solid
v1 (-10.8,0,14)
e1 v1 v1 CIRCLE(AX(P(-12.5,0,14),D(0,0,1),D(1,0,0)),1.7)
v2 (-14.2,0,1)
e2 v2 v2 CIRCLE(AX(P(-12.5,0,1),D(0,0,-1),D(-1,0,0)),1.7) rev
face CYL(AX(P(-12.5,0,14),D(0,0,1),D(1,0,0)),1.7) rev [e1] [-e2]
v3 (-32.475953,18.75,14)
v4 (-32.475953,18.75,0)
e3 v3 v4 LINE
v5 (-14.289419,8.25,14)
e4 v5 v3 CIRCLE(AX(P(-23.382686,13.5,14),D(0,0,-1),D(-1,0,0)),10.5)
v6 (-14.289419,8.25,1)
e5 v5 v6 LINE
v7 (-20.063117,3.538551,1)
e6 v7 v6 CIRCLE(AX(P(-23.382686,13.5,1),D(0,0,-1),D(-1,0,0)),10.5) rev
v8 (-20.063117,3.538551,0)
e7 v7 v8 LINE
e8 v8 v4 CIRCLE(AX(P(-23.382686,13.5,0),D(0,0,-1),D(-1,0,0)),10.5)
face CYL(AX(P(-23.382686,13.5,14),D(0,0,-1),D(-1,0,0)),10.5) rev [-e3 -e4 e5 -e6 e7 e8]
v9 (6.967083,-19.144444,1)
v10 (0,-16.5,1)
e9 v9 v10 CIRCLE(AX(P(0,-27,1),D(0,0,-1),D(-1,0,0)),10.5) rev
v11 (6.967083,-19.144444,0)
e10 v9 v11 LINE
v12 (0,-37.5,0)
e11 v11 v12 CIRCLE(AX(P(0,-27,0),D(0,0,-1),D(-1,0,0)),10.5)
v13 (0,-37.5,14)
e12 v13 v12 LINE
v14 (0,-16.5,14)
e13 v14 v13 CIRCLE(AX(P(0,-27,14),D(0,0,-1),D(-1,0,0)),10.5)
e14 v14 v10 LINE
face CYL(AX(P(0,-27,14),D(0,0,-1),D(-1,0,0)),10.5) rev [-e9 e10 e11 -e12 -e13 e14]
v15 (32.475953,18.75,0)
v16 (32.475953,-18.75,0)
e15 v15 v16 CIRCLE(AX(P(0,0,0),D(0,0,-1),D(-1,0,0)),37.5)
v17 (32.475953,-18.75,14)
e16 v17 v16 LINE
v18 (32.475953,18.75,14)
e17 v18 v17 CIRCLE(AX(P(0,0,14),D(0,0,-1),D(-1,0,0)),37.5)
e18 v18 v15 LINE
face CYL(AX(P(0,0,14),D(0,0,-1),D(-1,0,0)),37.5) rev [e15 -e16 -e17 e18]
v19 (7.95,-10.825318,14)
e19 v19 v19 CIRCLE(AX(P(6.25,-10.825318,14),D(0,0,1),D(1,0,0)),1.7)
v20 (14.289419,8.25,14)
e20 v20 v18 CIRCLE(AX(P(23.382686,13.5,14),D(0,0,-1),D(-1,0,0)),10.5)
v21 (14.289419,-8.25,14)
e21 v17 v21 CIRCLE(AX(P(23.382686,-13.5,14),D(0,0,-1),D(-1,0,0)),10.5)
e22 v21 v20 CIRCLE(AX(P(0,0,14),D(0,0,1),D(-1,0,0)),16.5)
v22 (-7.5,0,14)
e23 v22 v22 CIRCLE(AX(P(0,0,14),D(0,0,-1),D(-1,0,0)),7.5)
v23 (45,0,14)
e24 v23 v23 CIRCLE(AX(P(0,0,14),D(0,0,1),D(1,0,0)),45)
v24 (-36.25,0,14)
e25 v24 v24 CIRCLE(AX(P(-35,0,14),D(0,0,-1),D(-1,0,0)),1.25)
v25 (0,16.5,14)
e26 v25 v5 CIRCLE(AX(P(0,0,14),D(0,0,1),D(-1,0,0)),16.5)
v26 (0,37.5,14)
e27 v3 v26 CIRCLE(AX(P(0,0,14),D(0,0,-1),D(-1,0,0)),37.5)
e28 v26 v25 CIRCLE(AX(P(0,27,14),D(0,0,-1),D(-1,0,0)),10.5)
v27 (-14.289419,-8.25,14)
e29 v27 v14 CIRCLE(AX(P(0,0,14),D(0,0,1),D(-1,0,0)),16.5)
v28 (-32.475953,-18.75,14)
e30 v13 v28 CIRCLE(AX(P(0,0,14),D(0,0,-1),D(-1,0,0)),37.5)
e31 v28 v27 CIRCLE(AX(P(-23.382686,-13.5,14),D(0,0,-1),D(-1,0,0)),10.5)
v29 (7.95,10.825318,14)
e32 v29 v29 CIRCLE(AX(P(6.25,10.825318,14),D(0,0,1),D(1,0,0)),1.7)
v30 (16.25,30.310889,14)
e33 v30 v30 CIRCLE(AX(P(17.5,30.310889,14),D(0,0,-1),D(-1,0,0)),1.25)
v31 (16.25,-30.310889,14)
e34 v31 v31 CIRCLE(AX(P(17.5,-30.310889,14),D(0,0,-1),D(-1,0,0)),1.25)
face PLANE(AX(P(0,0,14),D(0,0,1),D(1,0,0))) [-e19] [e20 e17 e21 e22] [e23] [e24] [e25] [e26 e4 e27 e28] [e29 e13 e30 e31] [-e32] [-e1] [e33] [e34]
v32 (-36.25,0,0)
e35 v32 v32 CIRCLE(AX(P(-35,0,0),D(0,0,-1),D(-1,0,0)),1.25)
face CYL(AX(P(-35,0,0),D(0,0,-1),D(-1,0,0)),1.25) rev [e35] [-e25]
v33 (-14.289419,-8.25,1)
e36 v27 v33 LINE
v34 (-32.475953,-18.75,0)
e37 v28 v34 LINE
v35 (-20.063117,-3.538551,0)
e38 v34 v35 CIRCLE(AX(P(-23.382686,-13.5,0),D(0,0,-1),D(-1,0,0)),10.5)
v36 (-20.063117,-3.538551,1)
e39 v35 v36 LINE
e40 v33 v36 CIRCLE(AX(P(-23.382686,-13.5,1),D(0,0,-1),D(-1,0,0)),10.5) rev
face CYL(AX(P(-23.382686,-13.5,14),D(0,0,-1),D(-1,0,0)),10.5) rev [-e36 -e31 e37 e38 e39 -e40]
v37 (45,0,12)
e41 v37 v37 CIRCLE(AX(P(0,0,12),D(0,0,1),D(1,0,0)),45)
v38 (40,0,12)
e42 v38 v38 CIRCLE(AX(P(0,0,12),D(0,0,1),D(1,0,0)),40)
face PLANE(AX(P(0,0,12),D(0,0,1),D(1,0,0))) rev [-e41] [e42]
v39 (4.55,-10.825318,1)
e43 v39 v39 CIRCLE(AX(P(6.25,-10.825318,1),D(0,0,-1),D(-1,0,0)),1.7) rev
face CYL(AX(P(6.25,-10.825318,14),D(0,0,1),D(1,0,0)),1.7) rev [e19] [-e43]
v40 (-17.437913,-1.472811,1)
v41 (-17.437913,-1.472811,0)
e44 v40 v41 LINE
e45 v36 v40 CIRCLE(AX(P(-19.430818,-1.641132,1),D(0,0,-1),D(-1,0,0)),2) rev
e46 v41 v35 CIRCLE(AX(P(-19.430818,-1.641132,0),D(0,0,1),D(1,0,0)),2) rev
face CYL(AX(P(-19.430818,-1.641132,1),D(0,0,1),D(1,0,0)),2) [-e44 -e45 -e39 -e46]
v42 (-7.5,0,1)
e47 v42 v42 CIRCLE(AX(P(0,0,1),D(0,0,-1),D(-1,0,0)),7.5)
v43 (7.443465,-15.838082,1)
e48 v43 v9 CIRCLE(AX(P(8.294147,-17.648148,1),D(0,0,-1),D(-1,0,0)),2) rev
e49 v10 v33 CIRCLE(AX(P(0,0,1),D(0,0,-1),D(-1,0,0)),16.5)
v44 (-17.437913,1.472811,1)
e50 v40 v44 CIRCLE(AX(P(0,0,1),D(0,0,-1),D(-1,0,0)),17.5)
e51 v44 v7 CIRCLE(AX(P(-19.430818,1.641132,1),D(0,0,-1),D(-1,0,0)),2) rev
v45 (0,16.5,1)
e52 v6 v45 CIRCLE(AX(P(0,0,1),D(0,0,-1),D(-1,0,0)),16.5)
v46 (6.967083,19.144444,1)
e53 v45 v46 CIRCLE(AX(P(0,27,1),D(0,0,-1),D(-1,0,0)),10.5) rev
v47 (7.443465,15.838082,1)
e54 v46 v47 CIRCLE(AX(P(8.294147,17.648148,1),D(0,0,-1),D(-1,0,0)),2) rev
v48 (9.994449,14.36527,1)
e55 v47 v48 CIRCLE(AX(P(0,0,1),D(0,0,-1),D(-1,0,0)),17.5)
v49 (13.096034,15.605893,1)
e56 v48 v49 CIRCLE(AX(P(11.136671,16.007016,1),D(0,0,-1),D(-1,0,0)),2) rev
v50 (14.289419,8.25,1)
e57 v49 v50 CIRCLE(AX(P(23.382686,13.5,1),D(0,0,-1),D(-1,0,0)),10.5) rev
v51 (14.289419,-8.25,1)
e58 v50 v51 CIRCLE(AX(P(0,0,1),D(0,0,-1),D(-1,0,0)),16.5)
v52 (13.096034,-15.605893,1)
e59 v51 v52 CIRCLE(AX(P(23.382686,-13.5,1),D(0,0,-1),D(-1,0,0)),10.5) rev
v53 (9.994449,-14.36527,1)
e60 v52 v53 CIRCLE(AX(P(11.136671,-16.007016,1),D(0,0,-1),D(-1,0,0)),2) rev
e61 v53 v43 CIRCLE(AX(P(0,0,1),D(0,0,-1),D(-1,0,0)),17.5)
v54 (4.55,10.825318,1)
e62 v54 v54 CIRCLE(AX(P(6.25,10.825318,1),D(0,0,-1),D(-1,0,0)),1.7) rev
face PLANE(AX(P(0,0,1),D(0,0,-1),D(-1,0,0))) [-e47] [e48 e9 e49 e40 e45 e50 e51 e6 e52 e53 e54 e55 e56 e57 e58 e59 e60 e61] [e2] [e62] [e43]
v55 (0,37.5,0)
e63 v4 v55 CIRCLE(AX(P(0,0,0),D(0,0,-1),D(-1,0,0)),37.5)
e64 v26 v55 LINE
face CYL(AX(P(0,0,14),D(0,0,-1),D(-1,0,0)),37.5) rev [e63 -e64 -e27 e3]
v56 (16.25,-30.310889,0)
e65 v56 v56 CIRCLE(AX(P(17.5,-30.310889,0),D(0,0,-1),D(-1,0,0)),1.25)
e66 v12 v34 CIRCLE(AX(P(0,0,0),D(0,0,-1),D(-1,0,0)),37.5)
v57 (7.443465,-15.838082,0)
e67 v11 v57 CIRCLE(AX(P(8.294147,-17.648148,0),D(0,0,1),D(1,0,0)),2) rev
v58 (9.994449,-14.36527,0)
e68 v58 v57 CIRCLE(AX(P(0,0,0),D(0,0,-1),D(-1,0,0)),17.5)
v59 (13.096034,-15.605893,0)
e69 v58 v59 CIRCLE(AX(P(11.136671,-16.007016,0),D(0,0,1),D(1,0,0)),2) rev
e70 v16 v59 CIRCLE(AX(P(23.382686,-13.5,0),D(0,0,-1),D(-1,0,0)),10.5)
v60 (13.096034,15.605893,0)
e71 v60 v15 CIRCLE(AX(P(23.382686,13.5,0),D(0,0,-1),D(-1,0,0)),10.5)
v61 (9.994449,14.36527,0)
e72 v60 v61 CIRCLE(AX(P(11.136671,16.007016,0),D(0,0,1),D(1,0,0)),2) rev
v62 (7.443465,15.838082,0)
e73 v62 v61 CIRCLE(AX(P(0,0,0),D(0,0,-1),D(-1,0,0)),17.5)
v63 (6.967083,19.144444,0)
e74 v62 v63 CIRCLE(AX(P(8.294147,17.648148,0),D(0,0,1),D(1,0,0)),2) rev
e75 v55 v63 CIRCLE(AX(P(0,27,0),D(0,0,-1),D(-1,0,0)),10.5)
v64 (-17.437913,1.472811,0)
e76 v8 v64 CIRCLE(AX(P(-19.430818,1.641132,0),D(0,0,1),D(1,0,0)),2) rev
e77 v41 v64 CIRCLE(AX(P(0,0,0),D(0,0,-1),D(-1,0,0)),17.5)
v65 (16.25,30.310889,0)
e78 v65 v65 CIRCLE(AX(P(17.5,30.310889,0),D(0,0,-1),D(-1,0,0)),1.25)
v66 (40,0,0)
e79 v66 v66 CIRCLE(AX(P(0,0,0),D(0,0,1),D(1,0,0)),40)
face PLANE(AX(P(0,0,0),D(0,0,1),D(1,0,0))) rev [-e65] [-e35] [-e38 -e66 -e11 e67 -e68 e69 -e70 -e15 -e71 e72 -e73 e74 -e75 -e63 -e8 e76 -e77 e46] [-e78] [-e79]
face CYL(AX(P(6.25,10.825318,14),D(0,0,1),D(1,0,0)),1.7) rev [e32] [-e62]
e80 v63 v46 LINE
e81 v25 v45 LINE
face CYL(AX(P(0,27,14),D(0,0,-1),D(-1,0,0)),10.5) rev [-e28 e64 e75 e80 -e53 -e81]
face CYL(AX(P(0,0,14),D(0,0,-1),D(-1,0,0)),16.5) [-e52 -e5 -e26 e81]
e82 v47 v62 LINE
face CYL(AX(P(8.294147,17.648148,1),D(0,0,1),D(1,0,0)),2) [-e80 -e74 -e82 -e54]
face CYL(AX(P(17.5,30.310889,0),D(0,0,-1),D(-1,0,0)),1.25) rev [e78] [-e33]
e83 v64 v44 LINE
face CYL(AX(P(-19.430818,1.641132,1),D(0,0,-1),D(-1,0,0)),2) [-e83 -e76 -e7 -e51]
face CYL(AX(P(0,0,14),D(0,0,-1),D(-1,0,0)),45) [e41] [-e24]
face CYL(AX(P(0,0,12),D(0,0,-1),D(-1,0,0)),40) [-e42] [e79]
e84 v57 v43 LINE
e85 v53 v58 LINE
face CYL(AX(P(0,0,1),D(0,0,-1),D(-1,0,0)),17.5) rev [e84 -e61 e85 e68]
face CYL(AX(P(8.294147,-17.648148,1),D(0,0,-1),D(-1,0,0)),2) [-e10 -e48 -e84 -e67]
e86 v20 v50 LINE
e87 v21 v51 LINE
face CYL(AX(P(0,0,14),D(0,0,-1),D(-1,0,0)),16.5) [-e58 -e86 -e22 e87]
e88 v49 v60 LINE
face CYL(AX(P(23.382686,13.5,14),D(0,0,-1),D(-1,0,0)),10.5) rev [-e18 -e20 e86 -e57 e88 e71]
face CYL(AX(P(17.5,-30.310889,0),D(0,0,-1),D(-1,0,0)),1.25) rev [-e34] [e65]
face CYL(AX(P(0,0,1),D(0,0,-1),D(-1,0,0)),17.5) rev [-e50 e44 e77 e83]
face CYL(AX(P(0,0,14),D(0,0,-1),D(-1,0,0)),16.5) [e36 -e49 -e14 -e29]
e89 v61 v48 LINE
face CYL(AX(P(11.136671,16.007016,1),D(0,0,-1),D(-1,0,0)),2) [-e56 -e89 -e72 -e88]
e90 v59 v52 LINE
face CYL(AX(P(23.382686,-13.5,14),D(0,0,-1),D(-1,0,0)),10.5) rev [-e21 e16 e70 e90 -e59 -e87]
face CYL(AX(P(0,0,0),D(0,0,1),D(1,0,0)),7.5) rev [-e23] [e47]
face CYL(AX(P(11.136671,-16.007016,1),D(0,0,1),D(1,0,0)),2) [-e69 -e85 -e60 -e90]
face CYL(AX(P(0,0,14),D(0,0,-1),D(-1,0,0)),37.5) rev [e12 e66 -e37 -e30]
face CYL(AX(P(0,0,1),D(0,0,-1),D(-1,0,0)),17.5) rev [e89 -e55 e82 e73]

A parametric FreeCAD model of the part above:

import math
import FreeCAD as App
import Part
import Sketcher

V = App.Vector


def edges_at(feature, points):
    """Names of the edges that pass closest to the given points."""
    edges = feature.Shape.Edges
    near = lambda p: min(range(len(edges)), key=lambda i: edges[i].distToShape(Part.Vertex(*p))[0])
    return sorted({f"Edge{near(p) + 1}" for p in points})

doc = App.newDocument("Part")
params = doc.addObject("Spreadsheet::Sheet", "Params")
for row, (alias, value) in enumerate([
    ("sketch1_diameter", "80 mm"),
    ("pad1_length", "12 mm"),
    ("sketch2_diameter", "90 mm"),
    ("pad2_length", "2 mm"),
    ("sketch3_diameter", "15 mm"),
    ("sketch4_diameter", "3.4 mm"),
    ("hole_diameter", "3.4 mm"),
    ("sketch5_radius", "10.5 mm"),
    ("sketch5_radius2", "16.5 mm"),
    ("sketch6_diameter", "2.5 mm"),
    ("hole2_diameter", "2.5 mm"),
    ("sketch7_diameter", "35 mm"),
    ("pocket3_length", "1 mm"),
    ("fillet_radius", "2 mm"),
], start=1):
    params.set(f"A{row}", alias)
    params.set(f"B{row}", "=" + value)
    params.setAlias(f"B{row}", alias)

body = doc.addObject("PartDesign::Body", "Body")

sketch1 = body.newObject("Sketcher::SketchObject", "Sketch")
sketch1.AttachmentSupport = (doc.getObject("XY_Plane"), [""])
sketch1.MapMode = "FlatFace"
sketch1.addGeometry(Part.Circle(V(0, 0, 0), V(0, 0, 1), 40), False)
sketch1.addConstraint([
    Sketcher.Constraint("Coincident", 0, 3, -1, 1),
    Sketcher.Constraint("Diameter", 0, 80.0),
])
sketch1.setExpression("Constraints[1]", "Params.sketch1_diameter")
pad1 = body.newObject("PartDesign::Pad", "Pad")
pad1.Profile = sketch1
pad1.setExpression("Length", "Params.pad1_length")

sketch2 = body.newObject("Sketcher::SketchObject", "Sketch001")
sketch2.AttachmentSupport = (doc.getObject("XY_Plane"), [""])
sketch2.MapMode = "FlatFace"
sketch2.AttachmentOffset = App.Placement(V(0, 0, 12), App.Rotation())
sketch2.addGeometry(Part.Circle(V(0, 0, 0), V(0, 0, 1), 45), False)
sketch2.addConstraint([
    Sketcher.Constraint("Coincident", 0, 3, -1, 1),
    Sketcher.Constraint("Diameter", 0, 90.0),
])
sketch2.setExpression("Constraints[1]", "Params.sketch2_diameter")
pad2 = body.newObject("PartDesign::Pad", "Pad001")
pad2.Profile = sketch2
pad2.setExpression("Length", "Params.pad2_length")

sketch3 = body.newObject("Sketcher::SketchObject", "Sketch002")
sketch3.AttachmentSupport = (doc.getObject("XY_Plane"), [""])
sketch3.MapMode = "FlatFace"
sketch3.AttachmentOffset = App.Placement(V(0, 0, 14), App.Rotation())
sketch3.addGeometry(Part.Circle(V(0, 0, 0), V(0, 0, 1), 8), False)
sketch3.addConstraint([
    Sketcher.Constraint("Coincident", 0, 3, -1, 1),
    Sketcher.Constraint("Diameter", 0, 15.0),
])
sketch3.setExpression("Constraints[1]", "Params.sketch3_diameter")
pocket1 = body.newObject("PartDesign::Pocket", "Pocket")
pocket1.Profile = sketch3
pocket1.Type = "ThroughAll"

sketch4 = body.newObject("Sketcher::SketchObject", "Sketch003")
sketch4.AttachmentSupport = (doc.getObject("XY_Plane"), [""])
sketch4.MapMode = "FlatFace"
sketch4.AttachmentOffset = App.Placement(V(0, 0, 14), App.Rotation())
sketch4.addGeometry([
    Part.Circle(V(6.2, 10.8, 0), V(0, 0, 1), 1.7),
    Part.Circle(V(-12.5, 0, 0), V(0, 0, 1), 1.7),
    Part.Circle(V(6.2, -10.8, 0), V(0, 0, 1), 1.7),
], False)
sketch4.addConstraint([
    Sketcher.Constraint("Equal", 0, 1),
    Sketcher.Constraint("Equal", 1, 2),
    Sketcher.Constraint("Symmetric", 0, 3, 2, 3, -1),
    Sketcher.Constraint("PointOnObject", 1, 3, -1),
    Sketcher.Constraint("Diameter", 0, 3.4),
    Sketcher.Constraint("DistanceX", 1, 3, -1, 1, 12.5),
    Sketcher.Constraint("DistanceX", -1, 1, 0, 3, 6.25),
    Sketcher.Constraint("DistanceY", -1, 1, 0, 3, 10.825318),
])
sketch4.setExpression("Constraints[4]", "Params.sketch4_diameter")
doc.recompute()
hole = body.newObject("PartDesign::Hole", "Hole")
hole.Profile = sketch4
hole.ThreadType = "None"
hole.setExpression("Diameter", "Params.hole_diameter")
hole.DepthType = "ThroughAll"

sketch5 = body.newObject("Sketcher::SketchObject", "Sketch004")
sketch5.AttachmentSupport = (doc.getObject("XY_Plane"), [""])
sketch5.MapMode = "FlatFace"
sketch5.addGeometry([
    Part.ArcOfCircle(Part.Circle(V(-23, -14, 0), V(0, 0, 1), 10), math.radians(30), math.radians(210)),
    Part.ArcOfCircle(Part.Circle(V(0, 0, 0), V(0, 0, 1), 17), math.radians(-150), math.radians(-90)),
    Part.ArcOfCircle(Part.Circle(V(0, -27, 0), V(0, 0, 1), 10), math.radians(-90), math.radians(90)),
    Part.ArcOfCircle(Part.Circle(V(0, 0, 0), V(0, 0, 1), 38), math.radians(-150), math.radians(-90)),
    Part.ArcOfCircle(Part.Circle(V(0, 0, 0), V(0, 0, 1), 38), math.radians(90), math.radians(150)),
    Part.ArcOfCircle(Part.Circle(V(0, 27, 0), V(0, 0, 1), 10), math.radians(-90), math.radians(90)),
    Part.ArcOfCircle(Part.Circle(V(0, 0, 0), V(0, 0, 1), 17), math.radians(90), math.radians(150)),
    Part.ArcOfCircle(Part.Circle(V(-23, 14, 0), V(0, 0, 1), 10), math.radians(150), math.radians(330)),
    Part.ArcOfCircle(Part.Circle(V(23, -14, 0), V(0, 0, 1), 10), math.radians(150), math.radians(330)),
    Part.ArcOfCircle(Part.Circle(V(0, 0, 0), V(0, 0, 1), 16), math.radians(-30), math.radians(30)),
    Part.ArcOfCircle(Part.Circle(V(23, 14, 0), V(0, 0, 1), 10), math.radians(30), math.radians(210)),
    Part.ArcOfCircle(Part.Circle(V(0, 0, 0), V(0, 0, 1), 38), math.radians(-30), math.radians(30)),
], False)
sketch5.addConstraint([
    Sketcher.Constraint("Tangent", 0, 1, 1, 1),
    Sketcher.Constraint("Tangent", 1, 2, 2, 2),
    Sketcher.Constraint("Tangent", 2, 1, 3, 2),
    Sketcher.Constraint("Tangent", 3, 1, 0, 2),
    Sketcher.Constraint("Tangent", 4, 1, 5, 2),
    Sketcher.Constraint("Tangent", 5, 1, 6, 1),
    Sketcher.Constraint("Tangent", 6, 2, 7, 2),
    Sketcher.Constraint("Tangent", 7, 1, 4, 2),
    Sketcher.Constraint("Tangent", 8, 1, 9, 1),
    Sketcher.Constraint("Tangent", 9, 2, 10, 2),
    Sketcher.Constraint("Tangent", 10, 1, 11, 2),
    Sketcher.Constraint("Tangent", 11, 1, 8, 2),
    Sketcher.Constraint("Coincident", 1, 3, -1, 1),
    Sketcher.Constraint("Coincident", 3, 3, -1, 1),
    Sketcher.Constraint("Coincident", 4, 3, -1, 1),
    Sketcher.Constraint("Coincident", 6, 3, -1, 1),
    Sketcher.Constraint("Coincident", 9, 3, -1, 1),
    Sketcher.Constraint("Coincident", 11, 3, -1, 1),
    Sketcher.Constraint("Equal", 3, 4),
    Sketcher.Constraint("Equal", 2, 5),
    Sketcher.Constraint("Equal", 7, 8),
    Sketcher.Constraint("Equal", 6, 9),
    Sketcher.Constraint("PointOnObject", 2, 3, -2),
    Sketcher.Constraint("PointOnObject", 5, 3, -2),
    Sketcher.Constraint("Horizontal", 0, 3, 8, 3),
    Sketcher.Constraint("Horizontal", 7, 3, 10, 3),
    Sketcher.Constraint("Vertical", 0, 3, 7, 3),
    Sketcher.Constraint("Radius", 0, 10.5),
    Sketcher.Constraint("Radius", 1, 16.5),
    Sketcher.Constraint("DistanceY", 0, 3, 7, 3, 27.0),
])
sketch5.setExpression("Constraints[27]", "Params.sketch5_radius")
sketch5.setExpression("Constraints[28]", "Params.sketch5_radius2")
pocket2 = body.newObject("PartDesign::Pocket", "Pocket001")
pocket2.Profile = sketch5
pocket2.Type = "ThroughAll"
pocket2.Reversed = True

sketch6 = body.newObject("Sketcher::SketchObject", "Sketch005")
sketch6.AttachmentSupport = (doc.getObject("XY_Plane"), [""])
sketch6.MapMode = "FlatFace"
sketch6.addGeometry([
    Part.Circle(V(17.5, 30.3, 0), V(0, 0, 1), 1.2),
    Part.Circle(V(-35, 0, 0), V(0, 0, 1), 1.2),
    Part.Circle(V(17.5, -30.3, 0), V(0, 0, 1), 1.2),
], False)
sketch6.addConstraint([
    Sketcher.Constraint("Equal", 0, 1),
    Sketcher.Constraint("Equal", 1, 2),
    Sketcher.Constraint("Symmetric", 0, 3, 2, 3, -1),
    Sketcher.Constraint("PointOnObject", 1, 3, -1),
    Sketcher.Constraint("Diameter", 0, 2.5),
    Sketcher.Constraint("DistanceX", 1, 3, -1, 1, 35.0),
    Sketcher.Constraint("DistanceX", -1, 1, 0, 3, 17.5),
    Sketcher.Constraint("DistanceY", -1, 1, 0, 3, 30.310889),
])
sketch6.setExpression("Constraints[4]", "Params.sketch6_diameter")
doc.recompute()
hole2 = body.newObject("PartDesign::Hole", "Hole001")
hole2.Profile = sketch6
hole2.ThreadType = "None"
hole2.setExpression("Diameter", "Params.hole2_diameter")
hole2.DepthType = "ThroughAll"
hole2.Reversed = True

sketch7 = body.newObject("Sketcher::SketchObject", "Sketch006")
sketch7.AttachmentSupport = (doc.getObject("XY_Plane"), [""])
sketch7.MapMode = "FlatFace"
sketch7.addGeometry(Part.Circle(V(0, 0, 0), V(0, 0, 1), 18), False)
sketch7.addConstraint([
    Sketcher.Constraint("Coincident", 0, 3, -1, 1),
    Sketcher.Constraint("Diameter", 0, 35.0),
])
sketch7.setExpression("Constraints[1]", "Params.sketch7_diameter")
pocket3 = body.newObject("PartDesign::Pocket", "Pocket002")
pocket3.Profile = sketch7
pocket3.setExpression("Length", "Params.pocket3_length")
pocket3.Reversed = True
doc.recompute()

fillet = body.newObject("PartDesign::Fillet", "Fillet")
fillet.Base = (pocket3, edges_at(pocket3, [
    (3.581, 17.13, 0.5),
    (-16.625, 5.463, 0.5),
    (-16.625, -5.463, 0.5),
    (3.581, -17.13, 0.5),
    (13.044, -11.666, 0.5),
    (13.044, 11.666, 0.5),
]))
fillet.setExpression("Radius", "Params.fillet_radius")

doc.recompute()
